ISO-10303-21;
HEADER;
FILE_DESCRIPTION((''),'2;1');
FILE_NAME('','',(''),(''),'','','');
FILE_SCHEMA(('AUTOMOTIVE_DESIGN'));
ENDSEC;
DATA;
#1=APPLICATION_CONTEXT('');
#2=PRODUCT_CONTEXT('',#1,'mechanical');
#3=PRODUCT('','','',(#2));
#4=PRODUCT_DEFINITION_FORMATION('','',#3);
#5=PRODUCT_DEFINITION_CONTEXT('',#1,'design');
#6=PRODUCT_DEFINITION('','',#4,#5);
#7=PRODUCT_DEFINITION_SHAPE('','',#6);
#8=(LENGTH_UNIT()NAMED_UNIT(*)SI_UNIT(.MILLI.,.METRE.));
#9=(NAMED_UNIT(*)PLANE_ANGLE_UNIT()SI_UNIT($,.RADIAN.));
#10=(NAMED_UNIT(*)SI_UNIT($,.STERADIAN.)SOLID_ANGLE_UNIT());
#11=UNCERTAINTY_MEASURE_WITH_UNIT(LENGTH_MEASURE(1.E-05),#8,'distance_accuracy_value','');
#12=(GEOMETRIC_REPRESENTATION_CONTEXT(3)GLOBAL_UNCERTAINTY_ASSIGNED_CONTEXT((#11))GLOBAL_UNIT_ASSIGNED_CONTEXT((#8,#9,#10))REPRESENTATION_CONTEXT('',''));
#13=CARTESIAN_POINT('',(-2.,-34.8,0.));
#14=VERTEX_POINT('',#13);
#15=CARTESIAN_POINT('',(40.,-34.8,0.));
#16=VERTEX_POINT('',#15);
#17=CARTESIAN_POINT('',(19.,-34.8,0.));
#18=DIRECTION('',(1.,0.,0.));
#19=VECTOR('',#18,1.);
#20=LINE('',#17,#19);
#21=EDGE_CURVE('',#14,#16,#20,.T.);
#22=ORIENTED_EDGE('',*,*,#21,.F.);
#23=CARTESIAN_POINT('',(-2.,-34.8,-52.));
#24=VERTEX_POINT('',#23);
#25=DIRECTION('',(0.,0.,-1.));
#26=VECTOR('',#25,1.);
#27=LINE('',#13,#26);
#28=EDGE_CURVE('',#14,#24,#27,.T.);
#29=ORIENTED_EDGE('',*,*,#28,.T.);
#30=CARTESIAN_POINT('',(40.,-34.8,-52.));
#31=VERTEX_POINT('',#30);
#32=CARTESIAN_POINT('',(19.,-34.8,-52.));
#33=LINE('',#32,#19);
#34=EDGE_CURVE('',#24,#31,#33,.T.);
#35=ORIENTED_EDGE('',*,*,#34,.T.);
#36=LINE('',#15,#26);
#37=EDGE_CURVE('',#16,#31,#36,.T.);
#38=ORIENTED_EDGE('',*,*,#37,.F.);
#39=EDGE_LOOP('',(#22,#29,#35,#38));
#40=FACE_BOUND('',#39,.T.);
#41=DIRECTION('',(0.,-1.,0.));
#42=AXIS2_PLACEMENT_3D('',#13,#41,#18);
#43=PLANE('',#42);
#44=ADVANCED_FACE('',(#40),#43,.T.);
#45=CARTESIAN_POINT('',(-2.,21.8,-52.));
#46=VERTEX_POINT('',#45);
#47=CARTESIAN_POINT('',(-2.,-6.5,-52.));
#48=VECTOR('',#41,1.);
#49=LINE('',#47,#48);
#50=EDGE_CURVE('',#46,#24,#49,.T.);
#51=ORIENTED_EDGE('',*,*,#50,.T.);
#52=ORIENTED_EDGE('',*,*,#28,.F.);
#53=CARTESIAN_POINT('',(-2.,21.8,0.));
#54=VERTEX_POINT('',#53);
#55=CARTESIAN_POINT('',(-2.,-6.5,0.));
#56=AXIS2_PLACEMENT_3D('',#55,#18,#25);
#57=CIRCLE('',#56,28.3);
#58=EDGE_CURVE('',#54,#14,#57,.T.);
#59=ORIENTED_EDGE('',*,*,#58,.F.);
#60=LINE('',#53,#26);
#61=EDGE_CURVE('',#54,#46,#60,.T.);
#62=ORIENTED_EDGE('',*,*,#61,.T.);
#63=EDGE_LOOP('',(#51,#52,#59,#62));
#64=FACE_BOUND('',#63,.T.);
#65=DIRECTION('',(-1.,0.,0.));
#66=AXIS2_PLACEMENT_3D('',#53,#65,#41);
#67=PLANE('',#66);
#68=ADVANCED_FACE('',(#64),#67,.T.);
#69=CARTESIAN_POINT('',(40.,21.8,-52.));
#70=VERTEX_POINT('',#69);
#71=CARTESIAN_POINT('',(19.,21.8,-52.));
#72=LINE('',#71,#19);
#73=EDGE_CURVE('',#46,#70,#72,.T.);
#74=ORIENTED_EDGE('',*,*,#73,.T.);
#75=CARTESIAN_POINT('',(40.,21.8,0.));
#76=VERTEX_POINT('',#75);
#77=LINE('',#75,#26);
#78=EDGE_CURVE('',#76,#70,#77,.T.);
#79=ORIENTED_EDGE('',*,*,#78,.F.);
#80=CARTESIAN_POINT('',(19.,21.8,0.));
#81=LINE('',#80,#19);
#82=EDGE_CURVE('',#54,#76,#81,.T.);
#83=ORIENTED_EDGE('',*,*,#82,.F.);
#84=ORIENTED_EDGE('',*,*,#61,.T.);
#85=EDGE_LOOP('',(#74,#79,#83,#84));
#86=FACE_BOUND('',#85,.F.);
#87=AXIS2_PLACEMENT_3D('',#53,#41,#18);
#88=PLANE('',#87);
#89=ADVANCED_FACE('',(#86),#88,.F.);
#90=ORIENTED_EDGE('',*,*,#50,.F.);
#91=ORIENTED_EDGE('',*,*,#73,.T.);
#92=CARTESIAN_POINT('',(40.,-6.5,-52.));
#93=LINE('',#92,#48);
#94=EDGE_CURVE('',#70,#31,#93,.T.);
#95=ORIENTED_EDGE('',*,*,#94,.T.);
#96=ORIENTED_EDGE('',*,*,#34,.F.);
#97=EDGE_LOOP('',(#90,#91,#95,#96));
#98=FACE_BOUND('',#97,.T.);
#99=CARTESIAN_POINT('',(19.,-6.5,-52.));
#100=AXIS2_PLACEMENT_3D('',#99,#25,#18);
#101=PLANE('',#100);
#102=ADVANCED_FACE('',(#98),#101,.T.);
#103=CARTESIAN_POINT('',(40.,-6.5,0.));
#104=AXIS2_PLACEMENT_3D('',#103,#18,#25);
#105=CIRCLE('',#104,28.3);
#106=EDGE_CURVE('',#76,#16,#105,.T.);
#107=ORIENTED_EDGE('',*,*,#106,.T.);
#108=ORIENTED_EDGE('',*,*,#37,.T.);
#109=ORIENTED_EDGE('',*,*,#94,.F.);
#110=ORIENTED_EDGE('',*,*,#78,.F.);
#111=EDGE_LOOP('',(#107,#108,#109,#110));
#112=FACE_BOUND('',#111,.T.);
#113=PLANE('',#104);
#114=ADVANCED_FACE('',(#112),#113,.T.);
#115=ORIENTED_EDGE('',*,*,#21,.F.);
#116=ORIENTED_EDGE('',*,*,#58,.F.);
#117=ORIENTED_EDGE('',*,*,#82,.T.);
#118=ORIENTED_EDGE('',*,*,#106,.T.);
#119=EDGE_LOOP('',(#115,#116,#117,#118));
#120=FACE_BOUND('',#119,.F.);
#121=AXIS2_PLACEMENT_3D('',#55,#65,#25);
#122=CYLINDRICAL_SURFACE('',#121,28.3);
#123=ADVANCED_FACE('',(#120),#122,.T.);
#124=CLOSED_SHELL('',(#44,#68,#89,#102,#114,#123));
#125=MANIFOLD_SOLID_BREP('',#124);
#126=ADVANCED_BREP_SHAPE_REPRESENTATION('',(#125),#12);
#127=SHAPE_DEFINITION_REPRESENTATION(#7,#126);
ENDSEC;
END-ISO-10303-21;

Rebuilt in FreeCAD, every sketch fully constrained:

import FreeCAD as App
import Part
import Sketcher
from FreeCAD import Vector

doc = App.newDocument("Part")
body = doc.addObject("PartDesign::Body", "Body")

# Sketch on YZ plane
sketch1 = body.newObject("Sketcher::SketchObject", "Sketch")
sketch1.AttachmentSupport = (doc.getObject("YZ_Plane"), [""])
sketch1.MapMode = "FlatFace"
sketch1.AttachmentOffset = App.Placement(Vector(0, 0, -2), App.Rotation())
sketch1.addGeometry(Part.Circle(Vector(-6, 0, 0), Vector(0, 0, 1), 28), False)
sketch1.addConstraint([
    Sketcher.Constraint("PointOnObject", 0, 3, -1),
    Sketcher.Constraint("Diameter", 0, 56.6),
    Sketcher.Constraint("DistanceX", 0, 3, -1, 1, 6.5),
])
pad1 = body.newObject("PartDesign::Pad", "Pad")
pad1.Profile = sketch1
pad1.Length = 42
body2 = doc.addObject("PartDesign::Body", "Body001")

# Sketch on XY plane
sketch2 = body2.newObject("Sketcher::SketchObject", "Sketch001")
sketch2.AttachmentSupport = (doc.getObject("XY_Plane001"), [""])
sketch2.MapMode = "FlatFace"
sketch2.addGeometry([
    Part.LineSegment(Vector(-2, -35, 0), Vector(-2, 22, 0)),
    Part.LineSegment(Vector(-2, 22, 0), Vector(40, 22, 0)),
    Part.LineSegment(Vector(40, 22, 0), Vector(40, -35, 0)),
    Part.LineSegment(Vector(40, -35, 0), Vector(-2, -35, 0)),
], False)
sketch2.addConstraint([
    Sketcher.Constraint("Coincident", 0, 2, 1, 1),
    Sketcher.Constraint("Coincident", 1, 2, 2, 1),
    Sketcher.Constraint("Coincident", 2, 2, 3, 1),
    Sketcher.Constraint("Coincident", 3, 2, 0, 1),
    Sketcher.Constraint("Vertical", 0),
    Sketcher.Constraint("Horizontal", 1),
    Sketcher.Constraint("Vertical", 2),
    Sketcher.Constraint("Horizontal", 3),
    Sketcher.Constraint("DistanceX", 1, 1, 1, 2, 42.0),
    Sketcher.Constraint("DistanceY", 0, 1, 0, 2, 56.6),
    Sketcher.Constraint("DistanceX", 0, 2, -1, 1, 2.0),
    Sketcher.Constraint("DistanceY", -1, 1, 0, 2, 21.8),
])
pad2 = body2.newObject("PartDesign::Pad", "Pad001")
pad2.Profile = sketch2
pad2.Length = 52
pad2.Reversed = True
doc.recompute()

boolean = body2.newObject("PartDesign::Boolean", "Boolean")
boolean.Type = "Fuse"
boolean.addObjects([body])

doc.recompute()
